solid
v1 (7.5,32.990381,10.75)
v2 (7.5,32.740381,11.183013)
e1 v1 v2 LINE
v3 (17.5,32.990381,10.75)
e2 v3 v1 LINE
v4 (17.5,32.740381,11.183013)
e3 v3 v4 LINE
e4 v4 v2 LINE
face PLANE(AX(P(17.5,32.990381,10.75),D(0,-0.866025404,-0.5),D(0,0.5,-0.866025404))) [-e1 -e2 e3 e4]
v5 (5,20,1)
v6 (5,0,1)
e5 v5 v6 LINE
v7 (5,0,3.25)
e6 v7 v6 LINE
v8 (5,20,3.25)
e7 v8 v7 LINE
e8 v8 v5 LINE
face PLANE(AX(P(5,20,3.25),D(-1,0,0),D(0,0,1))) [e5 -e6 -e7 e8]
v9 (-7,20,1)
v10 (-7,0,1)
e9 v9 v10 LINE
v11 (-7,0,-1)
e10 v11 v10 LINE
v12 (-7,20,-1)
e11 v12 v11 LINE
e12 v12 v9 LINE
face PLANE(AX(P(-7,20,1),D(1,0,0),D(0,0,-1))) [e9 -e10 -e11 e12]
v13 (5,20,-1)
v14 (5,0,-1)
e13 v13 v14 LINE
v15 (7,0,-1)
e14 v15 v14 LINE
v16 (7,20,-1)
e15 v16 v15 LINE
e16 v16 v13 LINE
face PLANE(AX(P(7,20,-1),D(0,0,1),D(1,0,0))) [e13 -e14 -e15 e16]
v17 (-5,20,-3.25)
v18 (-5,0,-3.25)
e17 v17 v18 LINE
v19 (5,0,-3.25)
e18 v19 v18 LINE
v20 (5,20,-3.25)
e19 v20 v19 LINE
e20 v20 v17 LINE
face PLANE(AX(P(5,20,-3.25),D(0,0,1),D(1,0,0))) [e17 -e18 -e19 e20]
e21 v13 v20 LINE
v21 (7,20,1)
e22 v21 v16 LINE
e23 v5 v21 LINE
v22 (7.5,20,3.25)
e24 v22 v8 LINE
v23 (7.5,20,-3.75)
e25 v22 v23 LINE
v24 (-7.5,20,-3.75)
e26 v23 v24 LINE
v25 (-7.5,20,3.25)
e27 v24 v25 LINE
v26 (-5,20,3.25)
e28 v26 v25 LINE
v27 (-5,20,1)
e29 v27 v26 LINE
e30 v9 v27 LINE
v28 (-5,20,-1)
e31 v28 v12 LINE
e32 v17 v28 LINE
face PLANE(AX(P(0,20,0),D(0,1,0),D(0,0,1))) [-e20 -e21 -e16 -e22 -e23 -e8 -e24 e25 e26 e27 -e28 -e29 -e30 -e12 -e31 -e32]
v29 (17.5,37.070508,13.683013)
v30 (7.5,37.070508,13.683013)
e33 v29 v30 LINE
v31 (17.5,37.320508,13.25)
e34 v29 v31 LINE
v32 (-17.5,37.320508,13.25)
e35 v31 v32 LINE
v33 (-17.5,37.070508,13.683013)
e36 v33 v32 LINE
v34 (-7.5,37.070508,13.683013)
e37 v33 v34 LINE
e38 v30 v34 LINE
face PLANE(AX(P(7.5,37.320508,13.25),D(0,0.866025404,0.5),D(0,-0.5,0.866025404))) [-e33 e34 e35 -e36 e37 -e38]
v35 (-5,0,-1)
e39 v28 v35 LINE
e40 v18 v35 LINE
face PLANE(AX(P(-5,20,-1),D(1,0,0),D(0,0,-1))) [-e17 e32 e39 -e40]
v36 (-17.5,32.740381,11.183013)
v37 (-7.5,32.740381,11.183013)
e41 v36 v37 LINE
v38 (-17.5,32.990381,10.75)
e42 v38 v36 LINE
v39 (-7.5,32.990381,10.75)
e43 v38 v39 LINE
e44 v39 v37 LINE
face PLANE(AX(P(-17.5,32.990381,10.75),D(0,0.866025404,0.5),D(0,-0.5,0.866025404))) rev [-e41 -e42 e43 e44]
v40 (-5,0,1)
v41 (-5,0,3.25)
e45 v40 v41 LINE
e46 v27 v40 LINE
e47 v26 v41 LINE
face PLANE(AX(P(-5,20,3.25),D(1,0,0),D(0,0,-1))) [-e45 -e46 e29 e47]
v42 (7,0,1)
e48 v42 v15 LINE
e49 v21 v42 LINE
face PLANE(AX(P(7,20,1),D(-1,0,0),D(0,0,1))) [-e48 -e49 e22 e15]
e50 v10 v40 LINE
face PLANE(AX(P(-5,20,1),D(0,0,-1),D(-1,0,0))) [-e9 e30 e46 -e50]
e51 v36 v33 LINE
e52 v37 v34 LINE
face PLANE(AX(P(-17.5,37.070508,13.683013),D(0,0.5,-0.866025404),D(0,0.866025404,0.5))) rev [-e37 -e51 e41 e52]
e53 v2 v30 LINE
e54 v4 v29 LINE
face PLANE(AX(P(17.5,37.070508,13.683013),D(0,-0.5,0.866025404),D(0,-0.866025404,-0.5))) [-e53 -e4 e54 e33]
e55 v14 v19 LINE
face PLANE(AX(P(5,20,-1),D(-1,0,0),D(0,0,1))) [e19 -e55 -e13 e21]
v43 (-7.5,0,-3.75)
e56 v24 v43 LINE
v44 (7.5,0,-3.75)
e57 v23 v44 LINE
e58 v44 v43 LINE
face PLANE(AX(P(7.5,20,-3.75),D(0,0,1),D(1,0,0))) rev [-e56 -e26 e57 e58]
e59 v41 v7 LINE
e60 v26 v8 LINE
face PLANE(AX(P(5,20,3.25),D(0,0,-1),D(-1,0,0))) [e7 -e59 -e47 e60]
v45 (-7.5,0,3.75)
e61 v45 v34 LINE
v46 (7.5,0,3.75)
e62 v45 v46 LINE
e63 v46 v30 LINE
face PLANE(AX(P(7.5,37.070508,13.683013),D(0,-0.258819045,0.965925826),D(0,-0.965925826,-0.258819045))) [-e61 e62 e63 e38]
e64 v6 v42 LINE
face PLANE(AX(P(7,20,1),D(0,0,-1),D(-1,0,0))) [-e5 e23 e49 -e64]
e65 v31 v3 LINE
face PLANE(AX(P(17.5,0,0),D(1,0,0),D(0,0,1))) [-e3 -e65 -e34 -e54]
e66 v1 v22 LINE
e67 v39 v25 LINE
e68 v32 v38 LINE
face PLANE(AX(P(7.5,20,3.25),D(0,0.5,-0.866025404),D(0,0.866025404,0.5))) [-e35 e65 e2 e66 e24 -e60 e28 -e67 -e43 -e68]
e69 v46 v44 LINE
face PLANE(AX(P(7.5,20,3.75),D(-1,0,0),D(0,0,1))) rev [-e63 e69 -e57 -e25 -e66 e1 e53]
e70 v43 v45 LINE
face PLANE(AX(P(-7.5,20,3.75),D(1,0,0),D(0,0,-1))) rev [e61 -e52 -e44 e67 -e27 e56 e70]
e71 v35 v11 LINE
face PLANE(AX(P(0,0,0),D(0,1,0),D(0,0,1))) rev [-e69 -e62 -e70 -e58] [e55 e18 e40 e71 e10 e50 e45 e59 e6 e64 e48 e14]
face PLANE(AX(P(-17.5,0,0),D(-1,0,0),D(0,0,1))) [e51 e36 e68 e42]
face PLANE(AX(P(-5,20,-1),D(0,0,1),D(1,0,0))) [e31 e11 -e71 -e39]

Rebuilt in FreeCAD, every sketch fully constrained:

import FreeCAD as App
import Part
import Sketcher
from FreeCAD import Vector
Q = App.Units.Quantity


def add_polygon(sketch, points):
    """Adds a closed chain of lines whose ends are joined by coincident constraints."""
    first, n = sketch.GeometryCount, len(points)
    for a, b in zip(points, points[1:] + points[:1]):
        sketch.addGeometry(Part.LineSegment(App.Vector(*a, 0), App.Vector(*b, 0)), False)
    for i in range(n):
        sketch.addConstraint(Sketcher.Constraint("Coincident", first + i, 2, first + (i + 1) % n, 1))

doc = App.newDocument("Part")
params = doc.addObject("Spreadsheet::Sheet", "Params")
for row, (alias, value) in enumerate([
    ("sketch1_width", "15 mm"),
    ("sketch1_width2", "2 mm"),
    ("sketch1_width3", "10 mm"),
    ("sketch1_height", "7.5 mm"),
    ("pad1_length", "20 mm"),
    ("sketch2_width", "20 mm"),
    ("sketch2_length", "20 mm"),
    ("sketch2_height", "0.5 mm"),
    ("pad2_length", "15 mm"),
    ("sketch3_length", "5 mm"),
    ("sketch3_length2", "0.5 mm"),
    ("pad3_length", "10 mm"),
], start=1):
    params.set(f"A{row}", alias)
    params.set(f"B{row}", "=" + value)
    params.setAlias(f"B{row}", alias)

body = doc.addObject("PartDesign::Body", "Body")

sketch1 = body.newObject("Sketcher::SketchObject", "Sketch")
sketch1.AttachmentSupport = (doc.getObject("XZ_Plane"), [""])
sketch1.MapMode = "FlatFace"
add_polygon(sketch1, [(-7.5, -3.8), (-7.5, 3.8), (7.5, 3.8), (7.5, -3.8)])
add_polygon(sketch1, [(-7, -1), (-5, -1), (-5, -3.2), (5, -3.2), (5, -1), (7, -1), (7, 1), (5, 1), (5, 3.2), (-5, 3.2), (-5, 1), (-7, 1)])
sketch1.addConstraint(Sketcher.Constraint("Vertical", 0))
sketch1.addConstraint(Sketcher.Constraint("Horizontal", 1))
sketch1.addConstraint(Sketcher.Constraint("Vertical", 2))
sketch1.addConstraint(Sketcher.Constraint("Horizontal", 3))
sketch1.addConstraint(Sketcher.Constraint("Horizontal", 4))
sketch1.addConstraint(Sketcher.Constraint("Vertical", 5))
sketch1.addConstraint(Sketcher.Constraint("Horizontal", 6))
sketch1.addConstraint(Sketcher.Constraint("Vertical", 7))
sketch1.addConstraint(Sketcher.Constraint("Horizontal", 8))
sketch1.addConstraint(Sketcher.Constraint("Vertical", 9))
sketch1.addConstraint(Sketcher.Constraint("Horizontal", 10))
sketch1.addConstraint(Sketcher.Constraint("Vertical", 11))
sketch1.addConstraint(Sketcher.Constraint("Horizontal", 12))
sketch1.addConstraint(Sketcher.Constraint("Vertical", 13))
sketch1.addConstraint(Sketcher.Constraint("Horizontal", 14))
sketch1.addConstraint(Sketcher.Constraint("Vertical", 15))
sketch1.addConstraint(Sketcher.Constraint("Symmetric", 0, 2, 2, 2, -1, 1))
sketch1.addConstraint(Sketcher.Constraint("Symmetric", 4, 2, 10, 2, -1, 1))
sketch1.addConstraint(Sketcher.Constraint("Symmetric", 6, 2, 12, 2, -1, 1))
sketch1.addConstraint(Sketcher.Constraint("Symmetric", 8, 2, 14, 2, -1, 1))
sketch1.addConstraint(Sketcher.Constraint("Symmetric", 4, 2, 7, 2, -2))
sketch1.addConstraint(Sketcher.Constraint("Equal", 14, 9))
sketch1.addConstraint(Sketcher.Constraint("DistanceX", 1, 1, 1, 2, Q("15 mm")))
sketch1.addConstraint(Sketcher.Constraint("DistanceX", 4, 1, 4, 2, Q("2 mm")))
sketch1.addConstraint(Sketcher.Constraint("DistanceX", 6, 1, 6, 2, Q("10 mm")))
sketch1.addConstraint(Sketcher.Constraint("DistanceY", 0, 1, 0, 2, Q("7.5 mm")))
sketch1.addConstraint(Sketcher.Constraint("DistanceY", 5, 2, 0, 2, Q("7 mm")))
sketch1.setExpression("Constraints[38]", "Params.sketch1_width")
sketch1.setExpression("Constraints[39]", "Params.sketch1_width2")
sketch1.setExpression("Constraints[40]", "Params.sketch1_width3")
sketch1.setExpression("Constraints[41]", "Params.sketch1_height")
pad1 = body.newObject("PartDesign::Pad", "Pad")
pad1.Profile = sketch1
pad1.setExpression("Length", "Params.pad1_length")
pad1.Reversed = True

sketch2 = body.newObject("Sketcher::SketchObject", "Sketch001")
sketch2.AttachmentSupport = (doc.getObject("YZ_Plane"), [""])
sketch2.MapMode = "FlatFace"
sketch2.AttachmentOffset = App.Placement(Vector(0, 0, -7.5), App.Rotation())
add_polygon(sketch2, [(20, 3.8), (0, 3.8), (37.1, 13.7), (37.3, 13.2), (20, 3.2)])
sketch2.addConstraint(Sketcher.Constraint("Horizontal", 0))
sketch2.addConstraint(Sketcher.Constraint("Vertical", 4))
sketch2.addConstraint(Sketcher.Constraint("PointOnObject", 0, 2, -2))
sketch2.addConstraint(Sketcher.Constraint("Perpendicular", 2, 3))
sketch2.addConstraint(Sketcher.Constraint("DistanceX", 0, 2, 0, 1, Q("20 mm")))
sketch2.addConstraint(Sketcher.Constraint("Angle", 1, Q("15 deg")))
sketch2.addConstraint(Sketcher.Constraint("Angle", 2, Q("-60 deg")))
sketch2.addConstraint(Sketcher.Constraint("Distance", 3, Q("20 mm")))
sketch2.addConstraint(Sketcher.Constraint("DistanceY", 4, 1, 4, 2, Q("0.5 mm")))
sketch2.addConstraint(Sketcher.Constraint("DistanceY", -1, 1, 0, 2, Q("3.75 mm")))
sketch2.setExpression("Constraints[9]", "Params.sketch2_width")
sketch2.setExpression("Constraints[12]", "Params.sketch2_length")
sketch2.setExpression("Constraints[13]", "Params.sketch2_height")
pad2 = body.newObject("PartDesign::Pad", "Pad001")
pad2.Profile = sketch2
pad2.setExpression("Length", "Params.pad2_length")

sketch3 = body.newObject("Sketcher::SketchObject", "Sketch002")
sketch3.AttachmentSupport = (doc.getObject("YZ_Plane"), [""])
sketch3.MapMode = "FlatFace"
sketch3.AttachmentOffset = App.Placement(Vector(0, 0, -7.5), App.Rotation())
add_polygon(sketch3, [(33, 10.8), (32.7, 11.2), (37.1, 13.7), (37.3, 13.2)])
sketch3.addConstraint(Sketcher.Constraint("Perpendicular", 0, 1))
sketch3.addConstraint(Sketcher.Constraint("Perpendicular", 1, 2))
sketch3.addConstraint(Sketcher.Constraint("Perpendicular", 2, 3))
sketch3.addConstraint(Sketcher.Constraint("Angle", 0, Q("120 deg")))
sketch3.addConstraint(Sketcher.Constraint("Distance", 1, Q("5 mm")))
sketch3.addConstraint(Sketcher.Constraint("Distance", 0, Q("0.5 mm")))
sketch3.addConstraint(Sketcher.Constraint("DistanceY", -1, 1, 2, 2, Q("13.25 mm")))
sketch3.addConstraint(Sketcher.Constraint("DistanceX", -1, 1, 0, 2, Q("32.740381 mm")))
sketch3.setExpression("Constraints[8]", "Params.sketch3_length")
sketch3.setExpression("Constraints[9]", "Params.sketch3_length2")
pad3 = body.newObject("PartDesign::Pad", "Pad002")
pad3.Profile = sketch3
pad3.setExpression("Length", "Params.pad3_length")
pad3.Reversed = True
doc.recompute()

mirrored = body.newObject("PartDesign::Mirrored", "Mirrored")
mirrored.Originals = [pad3]
mirrored.MirrorPlane = (doc.getObject("YZ_Plane"), [""])
body.Tip = mirrored

doc.recompute()
